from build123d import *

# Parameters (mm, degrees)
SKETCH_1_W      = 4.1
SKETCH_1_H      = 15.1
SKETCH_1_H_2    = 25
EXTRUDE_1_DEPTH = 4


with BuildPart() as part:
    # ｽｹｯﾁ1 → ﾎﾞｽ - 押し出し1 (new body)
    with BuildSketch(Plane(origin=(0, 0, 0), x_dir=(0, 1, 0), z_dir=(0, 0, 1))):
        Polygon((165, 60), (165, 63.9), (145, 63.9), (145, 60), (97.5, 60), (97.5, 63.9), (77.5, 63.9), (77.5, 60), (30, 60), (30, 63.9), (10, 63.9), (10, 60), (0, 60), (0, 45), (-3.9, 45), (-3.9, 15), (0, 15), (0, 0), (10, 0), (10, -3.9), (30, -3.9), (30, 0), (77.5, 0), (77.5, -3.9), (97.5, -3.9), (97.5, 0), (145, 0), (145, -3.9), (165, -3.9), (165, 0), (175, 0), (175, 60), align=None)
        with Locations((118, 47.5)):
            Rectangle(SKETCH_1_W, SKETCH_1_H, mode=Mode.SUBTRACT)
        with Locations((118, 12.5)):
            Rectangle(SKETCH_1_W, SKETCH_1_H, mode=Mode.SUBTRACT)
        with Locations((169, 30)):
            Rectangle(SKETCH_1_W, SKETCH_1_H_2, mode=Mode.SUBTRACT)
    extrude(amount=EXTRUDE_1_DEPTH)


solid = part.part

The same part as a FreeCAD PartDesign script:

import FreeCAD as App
import Part
import Sketcher
from FreeCAD import Vector


def add_polygon(sketch, points):
    """Adds a closed chain of lines whose ends are joined by coincident constraints."""
    first, n = sketch.GeometryCount, len(points)
    for a, b in zip(points, points[1:] + points[:1]):
        sketch.addGeometry(Part.LineSegment(App.Vector(*a, 0), App.Vector(*b, 0)), False)
    for i in range(n):
        sketch.addConstraint(Sketcher.Constraint("Coincident", first + i, 2, first + (i + 1) % n, 1))

doc = App.newDocument("Part")
body = doc.addObject("PartDesign::Body", "Body")

# Sketch on XY plane
sketch1 = body.newObject("Sketcher::SketchObject", "Sketch")
sketch1.AttachmentSupport = (doc.getObject("XY_Plane"), [""])
sketch1.MapMode = "FlatFace"
add_polygon(sketch1, [(-60, 165), (-63.9, 165), (-63.9, 145), (-60, 145), (-60, 97.5), (-63.9, 97.5), (-63.9, 77.5), (-60, 77.5), (-60, 30), (-63.9, 30), (-63.9, 10), (-60, 10), (-60, 0), (-45, 0), (-45, -3.9), (-15, -3.9), (-15, 0), (0, 0), (0, 10), (3.9, 10), (3.9, 30), (0, 30), (0, 77.5), (3.9, 77.5), (3.9, 97.5), (0, 97.5), (0, 145), (3.9, 145), (3.9, 165), (0, 165), (0, 175), (-60, 175)])  # lines 0-31
add_polygon(sketch1, [(-4.95, 120.05), (-4.95, 115.95), (-20.05, 115.95), (-20.05, 120.05)])  # lines 32-35
add_polygon(sketch1, [(-39.95, 120.05), (-39.95, 115.95), (-55.05, 115.95), (-55.05, 120.05)])  # lines 36-39
add_polygon(sketch1, [(-17.5, 171.05), (-17.5, 166.95), (-42.5, 166.95), (-42.5, 171.05)])  # lines 40-43
sketch1.addConstraint([
    Sketcher.Constraint("Horizontal", 0),
    Sketcher.Constraint("Vertical", 1),
    Sketcher.Constraint("Horizontal", 2),
    Sketcher.Constraint("Vertical", 3),
    Sketcher.Constraint("Horizontal", 4),
    Sketcher.Constraint("Vertical", 5),
    Sketcher.Constraint("Horizontal", 6),
    Sketcher.Constraint("Vertical", 7),
    Sketcher.Constraint("Horizontal", 8),
    Sketcher.Constraint("Vertical", 9),
    Sketcher.Constraint("Horizontal", 10),
    Sketcher.Constraint("Vertical", 11),
    Sketcher.Constraint("Horizontal", 12),
    Sketcher.Constraint("Vertical", 13),
    Sketcher.Constraint("Horizontal", 14),
    Sketcher.Constraint("Vertical", 15),
    Sketcher.Constraint("Horizontal", 16),
    Sketcher.Constraint("Vertical", 17),
    Sketcher.Constraint("Horizontal", 18),
    Sketcher.Constraint("Vertical", 19),
    Sketcher.Constraint("Horizontal", 20),
    Sketcher.Constraint("Vertical", 21),
    Sketcher.Constraint("Horizontal", 22),
    Sketcher.Constraint("Vertical", 23),
    Sketcher.Constraint("Horizontal", 24),
    Sketcher.Constraint("Vertical", 25),
    Sketcher.Constraint("Horizontal", 26),
    Sketcher.Constraint("Vertical", 27),
    Sketcher.Constraint("Horizontal", 28),
    Sketcher.Constraint("Vertical", 29),
    Sketcher.Constraint("Horizontal", 30),
    Sketcher.Constraint("Vertical", 31),
    Sketcher.Constraint("Vertical", 32),
    Sketcher.Constraint("Horizontal", 33),
    Sketcher.Constraint("Vertical", 34),
    Sketcher.Constraint("Horizontal", 35),
    Sketcher.Constraint("Vertical", 36),
    Sketcher.Constraint("Horizontal", 37),
    Sketcher.Constraint("Vertical", 38),
    Sketcher.Constraint("Horizontal", 39),
    Sketcher.Constraint("Vertical", 40),
    Sketcher.Constraint("Horizontal", 41),
    Sketcher.Constraint("Vertical", 42),
    Sketcher.Constraint("Horizontal", 43),
    Sketcher.Constraint("Coincident", 16, 2, -1, 1),
    Sketcher.Constraint("PointOnObject", 11, 2, -1),
    Sketcher.Constraint("PointOnObject", 20, 2, -2),
    Sketcher.Constraint("PointOnObject", 24, 2, -2),
    Sketcher.Constraint("PointOnObject", 28, 2, -2),
    Sketcher.Constraint("Horizontal", 10, 2, 17, 2),
    Sketcher.Constraint("Horizontal", 8, 2, 19, 2),
    Sketcher.Constraint("Horizontal", 6, 2, 21, 2),
    Sketcher.Constraint("Horizontal", 4, 2, 23, 2),
    Sketcher.Constraint("Horizontal", 2, 2, 25, 2),
    Sketcher.Constraint("Horizontal", 0, 2, 27, 2),
    Sketcher.Constraint("Horizontal", 33, 2, 36, 2),
    Sketcher.Constraint("Horizontal", 35, 2, 38, 2),
    Sketcher.Constraint("Vertical", 1, 2, 4, 2),
    Sketcher.Constraint("Vertical", 3, 2, 6, 2),
    Sketcher.Constraint("Vertical", 5, 2, 8, 2),
    Sketcher.Constraint("Vertical", 7, 2, 10, 2),
    Sketcher.Constraint("Vertical", 19, 2, 22, 2),
    Sketcher.Constraint("Vertical", 23, 2, 26, 2),
    Sketcher.Constraint("Vertical", 11, 2, 30, 2),
    Sketcher.Constraint("Equal", 12, 16),
    Sketcher.Constraint("Equal", 10, 18),
    Sketcher.Constraint("Equal", 35, 37),
    Sketcher.Constraint("Equal", 1, 5),
    Sketcher.Constraint("Equal", 3, 7),
    Sketcher.Constraint("Equal", 5, 9),
    Sketcher.Constraint("Equal", 28, 13),
    Sketcher.Constraint("Equal", 17, 29),
    Sketcher.Constraint("Equal", 38, 40),
    Sketcher.Constraint("DistanceX", 12, 1, 12, 2, 15.0),
    Sketcher.Constraint("DistanceX", 14, 1, 14, 2, 30.0),
    Sketcher.Constraint("DistanceX", 41, 2, 41, 1, 25.0),
    Sketcher.Constraint("DistanceY", 1, 2, 1, 1, 20.0),
    Sketcher.Constraint("DistanceY", 11, 2, 11, 1, 10.0),
    Sketcher.Constraint("DistanceX", 0, 2, 0, 1, 3.9),
    Sketcher.Constraint("DistanceX", 33, 2, 33, 1, 15.1),
    Sketcher.Constraint("DistanceY", 3, 2, 3, 1, 47.5),
    Sketcher.Constraint("DistanceY", 32, 2, 32, 1, 4.1),
    Sketcher.Constraint("DistanceX", 36, 2, 32, 2, 35.0),
    Sketcher.Constraint("DistanceX", 40, 2, -1, 1, 17.5),
    Sketcher.Constraint("DistanceX", 32, 2, -1, 1, 4.95),
    Sketcher.Constraint("DistanceY", -1, 1, 32, 2, 115.95),
    Sketcher.Constraint("DistanceY", -1, 1, 40, 2, 166.95),
])
pad1 = body.newObject("PartDesign::Pad", "Pad")
pad1.Profile = sketch1
pad1.Length = 4

doc.recompute()
